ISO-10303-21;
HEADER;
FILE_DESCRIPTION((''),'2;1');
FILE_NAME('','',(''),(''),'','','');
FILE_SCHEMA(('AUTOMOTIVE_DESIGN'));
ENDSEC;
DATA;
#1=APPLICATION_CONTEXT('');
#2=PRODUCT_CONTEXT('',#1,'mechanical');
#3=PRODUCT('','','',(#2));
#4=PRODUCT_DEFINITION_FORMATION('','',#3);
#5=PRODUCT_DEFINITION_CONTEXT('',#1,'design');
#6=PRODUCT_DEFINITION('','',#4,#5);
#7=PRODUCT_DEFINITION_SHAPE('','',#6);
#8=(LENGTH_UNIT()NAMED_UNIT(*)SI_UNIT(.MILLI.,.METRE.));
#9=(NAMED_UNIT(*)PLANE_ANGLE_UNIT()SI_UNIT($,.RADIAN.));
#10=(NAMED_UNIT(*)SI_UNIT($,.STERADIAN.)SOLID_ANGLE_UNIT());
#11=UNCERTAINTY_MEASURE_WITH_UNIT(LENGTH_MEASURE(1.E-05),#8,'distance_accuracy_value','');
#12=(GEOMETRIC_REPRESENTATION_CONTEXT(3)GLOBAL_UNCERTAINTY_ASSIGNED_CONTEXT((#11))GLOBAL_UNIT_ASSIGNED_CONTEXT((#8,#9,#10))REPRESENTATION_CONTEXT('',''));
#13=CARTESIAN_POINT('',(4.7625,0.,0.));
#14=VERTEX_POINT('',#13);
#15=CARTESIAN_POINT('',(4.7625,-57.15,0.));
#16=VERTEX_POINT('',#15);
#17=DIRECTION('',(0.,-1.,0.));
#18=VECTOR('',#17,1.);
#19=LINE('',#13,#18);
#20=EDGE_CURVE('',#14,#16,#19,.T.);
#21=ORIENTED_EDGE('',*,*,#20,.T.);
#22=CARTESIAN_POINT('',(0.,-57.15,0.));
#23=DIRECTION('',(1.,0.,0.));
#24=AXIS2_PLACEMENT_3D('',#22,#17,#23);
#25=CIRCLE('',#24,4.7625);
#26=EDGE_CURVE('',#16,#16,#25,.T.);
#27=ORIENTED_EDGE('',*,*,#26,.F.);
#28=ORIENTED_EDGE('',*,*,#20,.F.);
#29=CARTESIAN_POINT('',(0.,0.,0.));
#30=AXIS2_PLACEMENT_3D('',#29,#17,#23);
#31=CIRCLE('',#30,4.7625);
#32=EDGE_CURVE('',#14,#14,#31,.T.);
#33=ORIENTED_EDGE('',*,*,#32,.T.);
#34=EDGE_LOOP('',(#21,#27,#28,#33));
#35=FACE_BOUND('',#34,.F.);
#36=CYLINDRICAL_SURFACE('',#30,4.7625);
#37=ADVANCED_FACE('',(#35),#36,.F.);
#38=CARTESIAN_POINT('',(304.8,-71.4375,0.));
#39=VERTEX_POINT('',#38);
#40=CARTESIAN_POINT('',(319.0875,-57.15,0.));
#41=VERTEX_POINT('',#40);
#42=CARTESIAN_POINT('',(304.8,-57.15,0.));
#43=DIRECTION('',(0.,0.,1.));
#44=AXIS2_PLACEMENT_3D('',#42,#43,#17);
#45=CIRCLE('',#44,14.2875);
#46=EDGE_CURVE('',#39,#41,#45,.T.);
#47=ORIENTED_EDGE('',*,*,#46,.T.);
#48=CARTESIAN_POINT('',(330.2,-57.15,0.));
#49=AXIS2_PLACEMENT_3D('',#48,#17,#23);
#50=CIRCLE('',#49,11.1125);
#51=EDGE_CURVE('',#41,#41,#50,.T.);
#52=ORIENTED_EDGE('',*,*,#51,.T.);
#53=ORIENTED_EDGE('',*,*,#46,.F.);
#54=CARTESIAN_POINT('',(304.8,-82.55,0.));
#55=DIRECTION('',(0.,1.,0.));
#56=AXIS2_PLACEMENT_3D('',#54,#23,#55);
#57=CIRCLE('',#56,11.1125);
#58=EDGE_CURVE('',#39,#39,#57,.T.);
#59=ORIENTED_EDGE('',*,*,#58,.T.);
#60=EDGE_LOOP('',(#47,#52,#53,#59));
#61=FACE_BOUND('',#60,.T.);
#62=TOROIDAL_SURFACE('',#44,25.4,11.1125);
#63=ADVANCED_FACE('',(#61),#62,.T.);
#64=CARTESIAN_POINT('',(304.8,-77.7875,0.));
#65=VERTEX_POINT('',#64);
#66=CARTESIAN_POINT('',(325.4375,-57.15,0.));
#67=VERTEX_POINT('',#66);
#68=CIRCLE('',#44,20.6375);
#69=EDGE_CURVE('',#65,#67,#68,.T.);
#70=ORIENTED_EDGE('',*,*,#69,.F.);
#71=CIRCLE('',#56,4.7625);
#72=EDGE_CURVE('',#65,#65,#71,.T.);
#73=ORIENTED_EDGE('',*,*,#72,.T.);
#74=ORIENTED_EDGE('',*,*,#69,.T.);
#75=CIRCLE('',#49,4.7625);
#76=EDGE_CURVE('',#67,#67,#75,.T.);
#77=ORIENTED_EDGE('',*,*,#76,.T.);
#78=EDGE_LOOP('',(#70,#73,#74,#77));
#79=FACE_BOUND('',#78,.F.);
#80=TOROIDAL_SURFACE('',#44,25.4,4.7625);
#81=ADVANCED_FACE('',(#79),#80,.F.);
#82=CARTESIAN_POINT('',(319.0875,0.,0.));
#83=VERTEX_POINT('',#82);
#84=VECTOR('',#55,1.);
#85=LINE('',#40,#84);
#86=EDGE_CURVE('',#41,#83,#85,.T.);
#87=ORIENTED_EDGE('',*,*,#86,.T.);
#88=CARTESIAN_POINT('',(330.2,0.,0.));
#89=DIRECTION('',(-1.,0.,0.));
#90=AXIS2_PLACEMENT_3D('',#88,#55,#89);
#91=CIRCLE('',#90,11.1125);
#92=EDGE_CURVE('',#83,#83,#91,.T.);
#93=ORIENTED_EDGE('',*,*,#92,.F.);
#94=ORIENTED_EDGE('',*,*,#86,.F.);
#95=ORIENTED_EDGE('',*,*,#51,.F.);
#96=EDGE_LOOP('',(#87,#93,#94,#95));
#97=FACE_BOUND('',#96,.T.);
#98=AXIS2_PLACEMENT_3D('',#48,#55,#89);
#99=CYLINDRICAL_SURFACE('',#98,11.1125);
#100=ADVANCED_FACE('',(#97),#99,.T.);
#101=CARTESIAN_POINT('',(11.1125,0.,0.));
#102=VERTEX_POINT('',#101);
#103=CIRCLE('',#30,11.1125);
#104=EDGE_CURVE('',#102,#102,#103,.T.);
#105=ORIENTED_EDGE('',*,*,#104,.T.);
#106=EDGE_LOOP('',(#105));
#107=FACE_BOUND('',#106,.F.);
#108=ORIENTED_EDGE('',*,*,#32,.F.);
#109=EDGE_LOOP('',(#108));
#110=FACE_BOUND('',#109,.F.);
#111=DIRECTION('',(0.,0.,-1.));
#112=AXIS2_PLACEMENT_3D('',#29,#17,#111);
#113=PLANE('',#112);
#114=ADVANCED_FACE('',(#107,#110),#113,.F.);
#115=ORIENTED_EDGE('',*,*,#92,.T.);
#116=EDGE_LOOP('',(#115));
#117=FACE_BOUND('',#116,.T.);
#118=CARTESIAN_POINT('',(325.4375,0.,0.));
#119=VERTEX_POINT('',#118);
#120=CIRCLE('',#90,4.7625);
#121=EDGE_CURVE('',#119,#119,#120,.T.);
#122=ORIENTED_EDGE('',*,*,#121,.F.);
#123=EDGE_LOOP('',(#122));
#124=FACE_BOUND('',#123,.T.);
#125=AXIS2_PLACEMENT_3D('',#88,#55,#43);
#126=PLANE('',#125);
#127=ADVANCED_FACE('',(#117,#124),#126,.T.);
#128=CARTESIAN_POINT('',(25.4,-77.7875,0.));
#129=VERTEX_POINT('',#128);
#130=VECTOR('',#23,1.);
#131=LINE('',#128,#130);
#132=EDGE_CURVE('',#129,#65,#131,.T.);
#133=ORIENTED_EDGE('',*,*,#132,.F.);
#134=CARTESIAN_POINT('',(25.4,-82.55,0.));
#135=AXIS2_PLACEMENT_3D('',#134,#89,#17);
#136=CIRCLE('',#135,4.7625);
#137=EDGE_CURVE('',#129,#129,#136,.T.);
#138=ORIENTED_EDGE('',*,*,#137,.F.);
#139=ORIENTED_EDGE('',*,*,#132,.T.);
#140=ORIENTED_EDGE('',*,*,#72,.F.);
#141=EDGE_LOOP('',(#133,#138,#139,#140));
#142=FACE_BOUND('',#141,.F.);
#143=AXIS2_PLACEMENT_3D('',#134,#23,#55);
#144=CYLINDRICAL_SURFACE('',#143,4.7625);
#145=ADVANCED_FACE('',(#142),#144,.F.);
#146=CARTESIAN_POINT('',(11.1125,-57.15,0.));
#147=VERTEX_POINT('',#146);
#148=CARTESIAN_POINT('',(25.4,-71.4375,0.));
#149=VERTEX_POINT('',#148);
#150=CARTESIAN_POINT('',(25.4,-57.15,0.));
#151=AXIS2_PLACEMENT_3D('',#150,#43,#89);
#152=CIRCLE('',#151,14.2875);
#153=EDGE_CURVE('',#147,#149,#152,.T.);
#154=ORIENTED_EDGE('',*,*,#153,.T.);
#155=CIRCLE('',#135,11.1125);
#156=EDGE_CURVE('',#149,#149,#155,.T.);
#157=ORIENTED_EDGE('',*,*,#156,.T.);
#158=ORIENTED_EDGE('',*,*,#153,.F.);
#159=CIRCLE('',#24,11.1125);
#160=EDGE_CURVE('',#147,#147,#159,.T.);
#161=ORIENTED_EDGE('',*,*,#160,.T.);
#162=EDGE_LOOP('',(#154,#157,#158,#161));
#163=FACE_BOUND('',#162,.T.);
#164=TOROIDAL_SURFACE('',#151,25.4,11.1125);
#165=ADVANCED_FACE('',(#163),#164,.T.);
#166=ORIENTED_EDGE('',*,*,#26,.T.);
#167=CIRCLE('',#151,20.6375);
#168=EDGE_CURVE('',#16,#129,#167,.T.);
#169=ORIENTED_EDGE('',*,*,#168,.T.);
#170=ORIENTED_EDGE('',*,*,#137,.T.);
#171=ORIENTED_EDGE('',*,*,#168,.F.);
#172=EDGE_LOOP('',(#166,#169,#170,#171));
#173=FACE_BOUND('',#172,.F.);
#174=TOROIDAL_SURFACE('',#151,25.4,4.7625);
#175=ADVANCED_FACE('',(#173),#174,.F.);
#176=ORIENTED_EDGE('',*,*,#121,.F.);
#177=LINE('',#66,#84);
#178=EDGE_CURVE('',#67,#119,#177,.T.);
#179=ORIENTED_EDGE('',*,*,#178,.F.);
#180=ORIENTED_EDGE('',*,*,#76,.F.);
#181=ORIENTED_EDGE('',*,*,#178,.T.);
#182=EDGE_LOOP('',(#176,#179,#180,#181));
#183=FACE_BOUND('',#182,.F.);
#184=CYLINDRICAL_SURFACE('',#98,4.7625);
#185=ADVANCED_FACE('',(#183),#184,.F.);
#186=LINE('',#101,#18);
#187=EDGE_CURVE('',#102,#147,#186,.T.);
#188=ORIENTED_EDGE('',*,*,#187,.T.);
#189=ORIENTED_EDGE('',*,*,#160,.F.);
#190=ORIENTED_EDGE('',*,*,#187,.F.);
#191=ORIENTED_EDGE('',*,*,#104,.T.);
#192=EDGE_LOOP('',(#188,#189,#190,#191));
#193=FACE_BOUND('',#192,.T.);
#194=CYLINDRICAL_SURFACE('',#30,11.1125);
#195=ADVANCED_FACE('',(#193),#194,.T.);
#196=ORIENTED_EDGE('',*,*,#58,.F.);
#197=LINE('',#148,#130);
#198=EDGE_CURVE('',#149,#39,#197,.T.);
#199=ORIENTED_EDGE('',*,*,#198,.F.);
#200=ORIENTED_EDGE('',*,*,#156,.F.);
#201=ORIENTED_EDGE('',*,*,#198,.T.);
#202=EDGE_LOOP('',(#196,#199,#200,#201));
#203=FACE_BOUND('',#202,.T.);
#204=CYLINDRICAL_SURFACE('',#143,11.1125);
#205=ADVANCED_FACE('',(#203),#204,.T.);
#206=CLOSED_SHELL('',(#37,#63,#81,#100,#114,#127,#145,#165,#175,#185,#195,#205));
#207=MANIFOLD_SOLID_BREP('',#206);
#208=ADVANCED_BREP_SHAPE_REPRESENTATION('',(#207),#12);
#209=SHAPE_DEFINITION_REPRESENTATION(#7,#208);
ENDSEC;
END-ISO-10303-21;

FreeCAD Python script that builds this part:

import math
import FreeCAD as App
import Part
import Sketcher

V = App.Vector
Q = App.Units.Quantity

doc = App.newDocument("Part")
body = doc.addObject("PartDesign::Body", "Body")

sketch1 = body.newObject("Sketcher::SketchObject", "Sketch")
sketch1.AttachmentSupport = (doc.getObject("XZ_Plane"), [""])
sketch1.MapMode = "FlatFace"
sketch1.addGeometry([
    Part.Circle(V(0, 0, 0), V(0, 0, 1), 11.1125),
    Part.Circle(V(0, 0, 0), V(0, 0, 1), 4.7625),
], False)
sketch1.addConstraint([
    Sketcher.Constraint("Coincident", 0, 3, -1, 1),
    Sketcher.Constraint("Coincident", 1, 3, -1, 1),
    Sketcher.Constraint("Diameter", 0, Q("0.875 in")),
    Sketcher.Constraint("Diameter", 1, Q("0.375 in")),
])

sketch2 = body.newObject("Sketcher::SketchObject", "Sketch001")
sketch2.AttachmentSupport = (doc.getObject("XY_Plane"), [""])
sketch2.MapMode = "FlatFace"
sketch2.addGeometry([
    Part.LineSegment(V(0, 0, 0), V(0, -57.15, 0)),
    Part.ArcOfCircle(Part.Circle(V(25.4, -57.15, 0), V(0, 0, 1), 25.4), math.radians(180), math.radians(270)),
    Part.LineSegment(V(25.4, -82.55, 0), V(304.8, -82.55, 0)),
    Part.ArcOfCircle(Part.Circle(V(304.8, -57.15, 0), V(0, 0, 1), 25.4), math.radians(-90), math.radians(0)),
    Part.LineSegment(V(330.2, -57.15, 0), V(330.2, 0, 0)),
], False)
sketch2.addConstraint([
    Sketcher.Constraint("Tangent", 0, 2, 1, 1),
    Sketcher.Constraint("Tangent", 1, 2, 2, 1),
    Sketcher.Constraint("Tangent", 2, 2, 3, 1),
    Sketcher.Constraint("Tangent", 3, 2, 4, 1),
    Sketcher.Constraint("Vertical", 0),
    Sketcher.Constraint("Horizontal", 2),
    Sketcher.Constraint("Vertical", 4),
    Sketcher.Constraint("Coincident", 0, 1, -1, 1),
    Sketcher.Constraint("Equal", 1, 3),
    Sketcher.Constraint("PointOnObject", 4, 2, -1),
    Sketcher.Constraint("Radius", 1, Q("1 in")),
    Sketcher.Constraint("DistanceX", 2, 1, 2, 2, Q("11 in")),
    Sketcher.Constraint("DistanceY", 0, 2, 0, 1, Q("2.25 in")),
])
doc.recompute()

additivepipe = body.newObject("PartDesign::AdditivePipe", "AdditivePipe")
additivepipe.Profile = sketch1
additivepipe.Spine = (sketch2, ["Edge1", "Edge2", "Edge3", "Edge4", "Edge5"])

doc.recompute()
